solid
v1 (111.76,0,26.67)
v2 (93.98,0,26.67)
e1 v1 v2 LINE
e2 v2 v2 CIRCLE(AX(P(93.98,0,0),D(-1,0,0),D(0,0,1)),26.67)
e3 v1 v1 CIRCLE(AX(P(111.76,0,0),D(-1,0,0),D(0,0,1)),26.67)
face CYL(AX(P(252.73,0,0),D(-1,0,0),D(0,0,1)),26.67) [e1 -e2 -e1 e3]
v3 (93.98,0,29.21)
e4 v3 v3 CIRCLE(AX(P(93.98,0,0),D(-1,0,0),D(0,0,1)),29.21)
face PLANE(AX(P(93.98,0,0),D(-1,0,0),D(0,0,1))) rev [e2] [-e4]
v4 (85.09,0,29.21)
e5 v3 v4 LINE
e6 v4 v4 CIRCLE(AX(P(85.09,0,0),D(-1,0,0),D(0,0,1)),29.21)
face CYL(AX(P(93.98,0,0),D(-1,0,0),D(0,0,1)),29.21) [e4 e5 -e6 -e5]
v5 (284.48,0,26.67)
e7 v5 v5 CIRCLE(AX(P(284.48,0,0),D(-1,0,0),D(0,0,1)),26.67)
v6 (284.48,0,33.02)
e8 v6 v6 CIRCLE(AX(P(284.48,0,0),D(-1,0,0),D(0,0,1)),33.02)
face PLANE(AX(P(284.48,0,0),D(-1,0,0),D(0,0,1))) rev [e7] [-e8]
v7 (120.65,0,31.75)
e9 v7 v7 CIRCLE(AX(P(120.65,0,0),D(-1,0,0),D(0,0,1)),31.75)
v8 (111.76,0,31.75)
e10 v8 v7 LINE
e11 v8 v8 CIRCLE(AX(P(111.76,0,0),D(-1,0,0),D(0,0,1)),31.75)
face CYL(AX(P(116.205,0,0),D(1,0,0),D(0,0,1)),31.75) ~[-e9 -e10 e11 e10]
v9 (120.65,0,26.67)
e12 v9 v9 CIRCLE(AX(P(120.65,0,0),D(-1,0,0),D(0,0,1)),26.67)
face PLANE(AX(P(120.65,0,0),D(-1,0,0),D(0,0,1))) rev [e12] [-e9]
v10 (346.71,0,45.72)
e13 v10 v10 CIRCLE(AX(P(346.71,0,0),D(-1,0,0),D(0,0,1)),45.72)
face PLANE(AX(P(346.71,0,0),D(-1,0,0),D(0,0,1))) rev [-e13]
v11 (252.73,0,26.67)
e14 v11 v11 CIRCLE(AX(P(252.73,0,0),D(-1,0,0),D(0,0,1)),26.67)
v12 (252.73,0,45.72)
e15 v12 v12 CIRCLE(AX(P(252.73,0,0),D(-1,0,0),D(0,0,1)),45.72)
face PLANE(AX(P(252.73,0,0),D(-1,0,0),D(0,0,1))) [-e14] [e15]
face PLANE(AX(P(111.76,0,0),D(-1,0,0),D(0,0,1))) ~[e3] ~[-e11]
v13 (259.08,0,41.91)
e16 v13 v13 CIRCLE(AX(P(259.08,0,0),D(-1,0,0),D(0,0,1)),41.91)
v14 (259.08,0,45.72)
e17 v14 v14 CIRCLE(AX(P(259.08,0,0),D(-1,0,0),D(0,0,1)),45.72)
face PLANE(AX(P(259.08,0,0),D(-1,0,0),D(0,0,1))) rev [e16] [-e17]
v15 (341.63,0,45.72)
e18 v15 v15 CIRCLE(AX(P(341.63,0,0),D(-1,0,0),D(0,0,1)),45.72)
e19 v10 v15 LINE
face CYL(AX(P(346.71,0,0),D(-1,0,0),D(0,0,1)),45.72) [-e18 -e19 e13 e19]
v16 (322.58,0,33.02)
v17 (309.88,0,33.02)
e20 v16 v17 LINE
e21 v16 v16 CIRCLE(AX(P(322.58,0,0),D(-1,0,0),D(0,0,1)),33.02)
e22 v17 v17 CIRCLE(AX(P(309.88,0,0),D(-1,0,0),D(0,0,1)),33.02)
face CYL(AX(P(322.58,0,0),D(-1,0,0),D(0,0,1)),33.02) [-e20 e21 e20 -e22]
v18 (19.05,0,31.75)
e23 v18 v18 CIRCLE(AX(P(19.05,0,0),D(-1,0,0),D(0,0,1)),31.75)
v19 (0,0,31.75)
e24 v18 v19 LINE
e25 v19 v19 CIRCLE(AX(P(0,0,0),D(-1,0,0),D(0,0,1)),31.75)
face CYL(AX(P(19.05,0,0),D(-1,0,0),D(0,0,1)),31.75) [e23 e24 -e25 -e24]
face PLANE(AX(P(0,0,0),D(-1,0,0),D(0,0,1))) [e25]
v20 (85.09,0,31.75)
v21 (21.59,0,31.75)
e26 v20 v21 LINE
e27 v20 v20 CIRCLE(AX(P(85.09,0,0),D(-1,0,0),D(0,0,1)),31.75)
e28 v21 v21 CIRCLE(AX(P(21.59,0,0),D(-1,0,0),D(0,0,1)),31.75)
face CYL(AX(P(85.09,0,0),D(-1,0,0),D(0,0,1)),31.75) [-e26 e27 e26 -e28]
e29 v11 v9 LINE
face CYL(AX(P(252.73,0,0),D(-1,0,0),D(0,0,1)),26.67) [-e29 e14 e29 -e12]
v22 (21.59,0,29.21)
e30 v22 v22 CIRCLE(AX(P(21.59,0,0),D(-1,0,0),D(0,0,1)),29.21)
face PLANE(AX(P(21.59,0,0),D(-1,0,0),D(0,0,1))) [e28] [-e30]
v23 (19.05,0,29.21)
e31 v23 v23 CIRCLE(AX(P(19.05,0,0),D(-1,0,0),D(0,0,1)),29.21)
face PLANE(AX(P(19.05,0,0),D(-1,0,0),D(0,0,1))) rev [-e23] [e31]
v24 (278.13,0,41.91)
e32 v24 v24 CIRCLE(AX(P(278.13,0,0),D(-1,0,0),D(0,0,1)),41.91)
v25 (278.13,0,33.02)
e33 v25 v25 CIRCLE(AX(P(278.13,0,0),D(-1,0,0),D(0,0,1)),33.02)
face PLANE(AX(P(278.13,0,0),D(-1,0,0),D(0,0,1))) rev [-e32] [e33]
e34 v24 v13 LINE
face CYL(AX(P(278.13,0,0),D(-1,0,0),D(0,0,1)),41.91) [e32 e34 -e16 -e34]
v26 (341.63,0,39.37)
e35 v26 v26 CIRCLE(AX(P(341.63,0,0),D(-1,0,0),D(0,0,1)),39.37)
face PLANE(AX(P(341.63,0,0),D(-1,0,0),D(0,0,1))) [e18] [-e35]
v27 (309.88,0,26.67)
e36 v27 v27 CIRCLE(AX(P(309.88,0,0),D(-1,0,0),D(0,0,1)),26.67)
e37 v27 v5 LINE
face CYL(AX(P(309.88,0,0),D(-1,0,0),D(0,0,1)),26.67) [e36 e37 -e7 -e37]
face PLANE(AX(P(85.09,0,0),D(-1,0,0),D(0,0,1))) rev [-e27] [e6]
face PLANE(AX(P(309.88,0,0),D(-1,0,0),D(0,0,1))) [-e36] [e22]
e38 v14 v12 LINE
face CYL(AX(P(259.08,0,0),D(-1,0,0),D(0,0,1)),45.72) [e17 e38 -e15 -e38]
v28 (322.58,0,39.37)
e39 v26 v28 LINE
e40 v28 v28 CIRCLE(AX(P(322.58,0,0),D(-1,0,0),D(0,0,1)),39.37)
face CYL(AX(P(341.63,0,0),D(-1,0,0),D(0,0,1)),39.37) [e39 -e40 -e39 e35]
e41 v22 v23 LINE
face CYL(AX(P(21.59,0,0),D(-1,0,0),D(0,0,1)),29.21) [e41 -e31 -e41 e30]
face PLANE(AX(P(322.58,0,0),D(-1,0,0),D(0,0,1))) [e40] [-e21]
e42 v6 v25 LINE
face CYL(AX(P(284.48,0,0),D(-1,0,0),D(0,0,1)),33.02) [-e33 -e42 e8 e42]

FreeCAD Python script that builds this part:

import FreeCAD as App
import Part
import Sketcher
from FreeCAD import Vector
Q = App.Units.Quantity

doc = App.newDocument("Part")
params = doc.addObject("Spreadsheet::Sheet", "Params")
for row, (alias, value) in enumerate([
    ("sketch1_width", "1 in"),
    ("sketch1_width2", "0.2 in"),
    ("sketch1_width3", "0.5 in"),
    ("sketch1_width4", "2.5 in"),
    ("sketch1_width5", "0.1 in"),
    ("revolution_angle", "360 deg"),
    ("sketch2_height", "0.2 in"),
    ("sketch2_width", "0.35 in"),
    ("revolution2_angle", "360 deg"),
], start=1):
    params.set(f"A{row}", alias)
    params.set(f"B{row}", "=" + value)
    params.setAlias(f"B{row}", alias)

body = doc.addObject("PartDesign::Body", "Body")

# Sketch on XZ plane
sketch1 = doc.addObject("Sketcher::SketchObject", "Sketch")
body.addObject(sketch1)
sketch1.AttachmentSupport = (doc.XZ_Plane, [""])
sketch1.MapMode = "FlatFace"
sketch1.addGeometry(Part.LineSegment(Vector(19.05, 31.75, 0), Vector(0, 31.75, 0)), False)
sketch1.addGeometry(Part.LineSegment(Vector(0, 31.75, 0), Vector(0, 0, 0)), False)
sketch1.addGeometry(Part.LineSegment(Vector(0, 0, 0), Vector(346.71, 0, 0)), False)
sketch1.addGeometry(Part.LineSegment(Vector(346.71, 0, 0), Vector(346.71, 45.72, 0)), False)
sketch1.addGeometry(Part.LineSegment(Vector(346.71, 45.72, 0), Vector(341.63, 45.72, 0)), False)
sketch1.addGeometry(Part.LineSegment(Vector(341.63, 45.72, 0), Vector(341.63, 39.37, 0)), False)
sketch1.addGeometry(Part.LineSegment(Vector(341.63, 39.37, 0), Vector(322.58, 39.37, 0)), False)
sketch1.addGeometry(Part.LineSegment(Vector(322.58, 39.37, 0), Vector(322.58, 33.02, 0)), False)
sketch1.addGeometry(Part.LineSegment(Vector(322.58, 33.02, 0), Vector(309.88, 33.02, 0)), False)
sketch1.addGeometry(Part.LineSegment(Vector(309.88, 33.02, 0), Vector(309.88, 26.67, 0)), False)
sketch1.addGeometry(Part.LineSegment(Vector(309.88, 26.67, 0), Vector(284.48, 26.67, 0)), False)
sketch1.addGeometry(Part.LineSegment(Vector(284.48, 26.67, 0), Vector(284.48, 33.02, 0)), False)
sketch1.addGeometry(Part.LineSegment(Vector(284.48, 33.02, 0), Vector(278.13, 33.02, 0)), False)
sketch1.addGeometry(Part.LineSegment(Vector(278.13, 33.02, 0), Vector(278.13, 41.91, 0)), False)
sketch1.addGeometry(Part.LineSegment(Vector(278.13, 41.91, 0), Vector(259.08, 41.91, 0)), False)
sketch1.addGeometry(Part.LineSegment(Vector(259.08, 41.91, 0), Vector(259.08, 45.72, 0)), False)
sketch1.addGeometry(Part.LineSegment(Vector(259.08, 45.72, 0), Vector(252.73, 45.72, 0)), False)
sketch1.addGeometry(Part.LineSegment(Vector(252.73, 45.72, 0), Vector(252.73, 26.67, 0)), False)
sketch1.addGeometry(Part.LineSegment(Vector(252.73, 26.67, 0), Vector(93.98, 26.67, 0)), False)
sketch1.addGeometry(Part.LineSegment(Vector(93.98, 26.67, 0), Vector(93.98, 29.21, 0)), False)
sketch1.addGeometry(Part.LineSegment(Vector(93.98, 29.21, 0), Vector(85.09, 29.21, 0)), False)
sketch1.addGeometry(Part.LineSegment(Vector(85.09, 29.21, 0), Vector(85.09, 31.75, 0)), False)
sketch1.addGeometry(Part.LineSegment(Vector(85.09, 31.75, 0), Vector(21.59, 31.75, 0)), False)
sketch1.addGeometry(Part.LineSegment(Vector(21.59, 31.75, 0), Vector(21.59, 29.21, 0)), False)
sketch1.addGeometry(Part.LineSegment(Vector(21.59, 29.21, 0), Vector(19.05, 29.21, 0)), False)
sketch1.addGeometry(Part.LineSegment(Vector(19.05, 29.21, 0), Vector(19.05, 31.75, 0)), False)
sketch1.addConstraint(Sketcher.Constraint("Coincident", 0, 2, 1, 1))
sketch1.addConstraint(Sketcher.Constraint("Coincident", 1, 2, 2, 1))
sketch1.addConstraint(Sketcher.Constraint("Coincident", 2, 2, 3, 1))
sketch1.addConstraint(Sketcher.Constraint("Coincident", 3, 2, 4, 1))
sketch1.addConstraint(Sketcher.Constraint("Coincident", 4, 2, 5, 1))
sketch1.addConstraint(Sketcher.Constraint("Coincident", 5, 2, 6, 1))
sketch1.addConstraint(Sketcher.Constraint("Coincident", 6, 2, 7, 1))
sketch1.addConstraint(Sketcher.Constraint("Coincident", 7, 2, 8, 1))
sketch1.addConstraint(Sketcher.Constraint("Coincident", 8, 2, 9, 1))
sketch1.addConstraint(Sketcher.Constraint("Coincident", 9, 2, 10, 1))
sketch1.addConstraint(Sketcher.Constraint("Coincident", 10, 2, 11, 1))
sketch1.addConstraint(Sketcher.Constraint("Coincident", 11, 2, 12, 1))
sketch1.addConstraint(Sketcher.Constraint("Coincident", 12, 2, 13, 1))
sketch1.addConstraint(Sketcher.Constraint("Coincident", 13, 2, 14, 1))
sketch1.addConstraint(Sketcher.Constraint("Coincident", 14, 2, 15, 1))
sketch1.addConstraint(Sketcher.Constraint("Coincident", 15, 2, 16, 1))
sketch1.addConstraint(Sketcher.Constraint("Coincident", 16, 2, 17, 1))
sketch1.addConstraint(Sketcher.Constraint("Coincident", 17, 2, 18, 1))
sketch1.addConstraint(Sketcher.Constraint("Coincident", 18, 2, 19, 1))
sketch1.addConstraint(Sketcher.Constraint("Coincident", 19, 2, 20, 1))
sketch1.addConstraint(Sketcher.Constraint("Coincident", 20, 2, 21, 1))
sketch1.addConstraint(Sketcher.Constraint("Coincident", 21, 2, 22, 1))
sketch1.addConstraint(Sketcher.Constraint("Coincident", 22, 2, 23, 1))
sketch1.addConstraint(Sketcher.Constraint("Coincident", 23, 2, 24, 1))
sketch1.addConstraint(Sketcher.Constraint("Coincident", 24, 2, 25, 1))
sketch1.addConstraint(Sketcher.Constraint("Coincident", 25, 2, 0, 1))
sketch1.addConstraint(Sketcher.Constraint("Horizontal", 0))
sketch1.addConstraint(Sketcher.Constraint("Vertical", 1))
sketch1.addConstraint(Sketcher.Constraint("Horizontal", 2))
sketch1.addConstraint(Sketcher.Constraint("Vertical", 3))
sketch1.addConstraint(Sketcher.Constraint("Horizontal", 4))
sketch1.addConstraint(Sketcher.Constraint("Vertical", 5))
sketch1.addConstraint(Sketcher.Constraint("Horizontal", 6))
sketch1.addConstraint(Sketcher.Constraint("Vertical", 7))
sketch1.addConstraint(Sketcher.Constraint("Horizontal", 8))
sketch1.addConstraint(Sketcher.Constraint("Vertical", 9))
sketch1.addConstraint(Sketcher.Constraint("Horizontal", 10))
sketch1.addConstraint(Sketcher.Constraint("Vertical", 11))
sketch1.addConstraint(Sketcher.Constraint("Horizontal", 12))
sketch1.addConstraint(Sketcher.Constraint("Vertical", 13))
sketch1.addConstraint(Sketcher.Constraint("Horizontal", 14))
sketch1.addConstraint(Sketcher.Constraint("Vertical", 15))
sketch1.addConstraint(Sketcher.Constraint("Horizontal", 16))
sketch1.addConstraint(Sketcher.Constraint("Vertical", 17))
sketch1.addConstraint(Sketcher.Constraint("Horizontal", 18))
sketch1.addConstraint(Sketcher.Constraint("Vertical", 19))
sketch1.addConstraint(Sketcher.Constraint("Horizontal", 20))
sketch1.addConstraint(Sketcher.Constraint("Vertical", 21))
sketch1.addConstraint(Sketcher.Constraint("Horizontal", 22))
sketch1.addConstraint(Sketcher.Constraint("Vertical", 23))
sketch1.addConstraint(Sketcher.Constraint("Horizontal", 24))
sketch1.addConstraint(Sketcher.Constraint("Vertical", 25))
sketch1.addConstraint(Sketcher.Constraint("Coincident", 1, 2, -1, 1))
sketch1.addConstraint(Sketcher.Constraint("Horizontal", 8, 2, 11, 2))
sketch1.addConstraint(Sketcher.Constraint("Horizontal", 4, 2, 15, 2))
sketch1.addConstraint(Sketcher.Constraint("Horizontal", 10, 2, 17, 2))
sketch1.addConstraint(Sketcher.Constraint("Horizontal", 0, 2, 21, 2))
sketch1.addConstraint(Sketcher.Constraint("Horizontal", 20, 2, 23, 2))
sketch1.addConstraint(Sketcher.Constraint("Equal", 0, 6))
sketch1.addConstraint(Sketcher.Constraint("Equal", 6, 14))
sketch1.addConstraint(Sketcher.Constraint("Equal", 12, 16))
sketch1.addConstraint(Sketcher.Constraint("Equal", 16, 5))
sketch1.addConstraint(Sketcher.Constraint("Equal", 5, 7))
sketch1.addConstraint(Sketcher.Constraint("Equal", 7, 9))
sketch1.addConstraint(Sketcher.Constraint("Equal", 20, 13))
sketch1.addConstraint(Sketcher.Constraint("Equal", 14, 17))
sketch1.addConstraint(Sketcher.Constraint("Equal", 24, 19))
sketch1.addConstraint(Sketcher.Constraint("Equal", 19, 21))
sketch1.addConstraint(Sketcher.Constraint("DistanceX", 10, 2, 10, 1, Q("1 in")))
sketch1.addConstraint(Sketcher.Constraint("DistanceX", 4, 2, 4, 1, Q("0.2 in")))
sketch1.addConstraint(Sketcher.Constraint("DistanceX", 8, 2, 8, 1, Q("0.5 in")))
sketch1.addConstraint(Sketcher.Constraint("DistanceX", 22, 2, 22, 1, Q("2.5 in")))
sketch1.addConstraint(Sketcher.Constraint("DistanceX", 24, 2, 24, 1, Q("0.1 in")))
sketch1.addConstraint(Sketcher.Constraint("DistanceY", 3, 1, 3, 2, Q("1.8 in")))
sketch1.addConstraint(Sketcher.Constraint("DistanceX", 14, 2, 11, 2, Q("1 in")))
sketch1.addConstraint(Sketcher.Constraint("DistanceX", 2, 1, 2, 2, Q("13.65 in")))
sketch1.addConstraint(Sketcher.Constraint("DistanceX", 18, 2, 18, 1, Q("6.25 in")))
sketch1.setExpression("Constraints[68]", "Params.sketch1_width")
sketch1.setExpression("Constraints[69]", "Params.sketch1_width2")
sketch1.setExpression("Constraints[70]", "Params.sketch1_width3")
sketch1.setExpression("Constraints[71]", "Params.sketch1_width4")
sketch1.setExpression("Constraints[72]", "Params.sketch1_width5")
revolution = doc.addObject("PartDesign::Revolution", "Revolution")
body.addObject(revolution)
revolution.Profile = sketch1
revolution.ReferenceAxis = (sketch1, ["H_Axis"])
revolution.setExpression("Angle", "Params.revolution_angle")

# Sketch on XZ plane
sketch2 = doc.addObject("Sketcher::SketchObject", "Sketch001")
body.addObject(sketch2)
sketch2.AttachmentSupport = (doc.XZ_Plane, [""])
sketch2.MapMode = "FlatFace"
sketch2.addGeometry(Part.LineSegment(Vector(111.76, 31.75, 0), Vector(111.76, 26.67, 0)), False)
sketch2.addGeometry(Part.LineSegment(Vector(111.76, 26.67, 0), Vector(120.65, 26.67, 0)), False)
sketch2.addGeometry(Part.LineSegment(Vector(120.65, 26.67, 0), Vector(120.65, 31.75, 0)), False)
sketch2.addGeometry(Part.LineSegment(Vector(120.65, 31.75, 0), Vector(111.76, 31.75, 0)), False)
sketch2.addConstraint(Sketcher.Constraint("Coincident", 0, 2, 1, 1))
sketch2.addConstraint(Sketcher.Constraint("Coincident", 1, 2, 2, 1))
sketch2.addConstraint(Sketcher.Constraint("Coincident", 2, 2, 3, 1))
sketch2.addConstraint(Sketcher.Constraint("Coincident", 3, 2, 0, 1))
sketch2.addConstraint(Sketcher.Constraint("Vertical", 0))
sketch2.addConstraint(Sketcher.Constraint("Horizontal", 1))
sketch2.addConstraint(Sketcher.Constraint("Vertical", 2))
sketch2.addConstraint(Sketcher.Constraint("Horizontal", 3))
sketch2.addConstraint(Sketcher.Constraint("DistanceY", 0, 2, 0, 1, Q("0.2 in")))
sketch2.addConstraint(Sketcher.Constraint("DistanceX", 1, 1, 1, 2, Q("0.35 in")))
sketch2.addConstraint(Sketcher.Constraint("DistanceX", -1, 1, 0, 2, Q("4.4 in")))
sketch2.addConstraint(Sketcher.Constraint("DistanceY", -1, 1, 0, 2, Q("1.05 in")))
sketch2.setExpression("Constraints[8]", "Params.sketch2_height")
sketch2.setExpression("Constraints[9]", "Params.sketch2_width")
revolution2 = doc.addObject("PartDesign::Revolution", "Revolution001")
body.addObject(revolution2)
revolution2.Profile = sketch2
revolution2.ReferenceAxis = (sketch2, ["H_Axis"])
revolution2.setExpression("Angle", "Params.revolution2_angle")

doc.recompute()
